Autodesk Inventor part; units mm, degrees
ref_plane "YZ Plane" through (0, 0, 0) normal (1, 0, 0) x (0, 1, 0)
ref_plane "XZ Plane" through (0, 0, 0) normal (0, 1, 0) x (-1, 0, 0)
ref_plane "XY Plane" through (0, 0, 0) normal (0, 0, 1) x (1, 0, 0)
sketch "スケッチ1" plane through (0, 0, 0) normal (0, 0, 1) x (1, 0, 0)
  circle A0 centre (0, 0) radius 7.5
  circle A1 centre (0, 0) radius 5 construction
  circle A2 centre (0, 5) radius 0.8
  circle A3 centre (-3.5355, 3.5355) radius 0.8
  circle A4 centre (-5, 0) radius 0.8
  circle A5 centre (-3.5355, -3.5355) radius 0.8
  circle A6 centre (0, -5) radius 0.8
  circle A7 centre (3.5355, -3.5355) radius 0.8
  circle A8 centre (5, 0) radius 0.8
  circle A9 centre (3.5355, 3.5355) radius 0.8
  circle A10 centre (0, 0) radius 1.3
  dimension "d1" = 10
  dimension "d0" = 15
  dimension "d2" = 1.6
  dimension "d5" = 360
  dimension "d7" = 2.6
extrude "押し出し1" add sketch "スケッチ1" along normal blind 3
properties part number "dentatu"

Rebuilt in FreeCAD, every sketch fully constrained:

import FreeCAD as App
import Part
import Sketcher
Q = App.Units.Quantity

doc = App.newDocument("Part")
body = doc.addObject("PartDesign::Body", "Body")

sketch1 = body.newObject("Sketcher::SketchObject", "Sketch")
sketch1.AttachmentSupport = (doc.getObject("XY_Plane"), [""])
sketch1.MapMode = "FlatFace"
sketch1.addGeometry([
    Part.Circle(App.Vector(0, 0, 0), App.Vector(0, 0, 1), 7.5),
    Part.Circle(App.Vector(-3.5, -3.5, 0), App.Vector(0, 0, 1), 0.8),
    Part.Circle(App.Vector(0, -5, 0), App.Vector(0, 0, 1), 0.8),
    Part.Circle(App.Vector(3.5, -3.5, 0), App.Vector(0, 0, 1), 0.8),
    Part.Circle(App.Vector(-5, 0, 0), App.Vector(0, 0, 1), 0.8),
    Part.Circle(App.Vector(-3.5, 3.5, 0), App.Vector(0, 0, 1), 0.8),
    Part.Circle(App.Vector(0, 0, 0), App.Vector(0, 0, 1), 1.3),
    Part.Circle(App.Vector(3.5, 3.5, 0), App.Vector(0, 0, 1), 0.8),
    Part.Circle(App.Vector(5, 0, 0), App.Vector(0, 0, 1), 0.8),
    Part.Circle(App.Vector(0, 5, 0), App.Vector(0, 0, 1), 0.8),
], False)
sketch1.addConstraint([
    Sketcher.Constraint("Coincident", 0, 3, -1, 1),
    Sketcher.Constraint("Coincident", 6, 3, -1, 1),
    Sketcher.Constraint("Equal", 1, 2),
    Sketcher.Constraint("Equal", 2, 3),
    Sketcher.Constraint("Equal", 3, 4),
    Sketcher.Constraint("Equal", 4, 5),
    Sketcher.Constraint("Equal", 5, 7),
    Sketcher.Constraint("Equal", 7, 8),
    Sketcher.Constraint("Equal", 8, 9),
    Sketcher.Constraint("Symmetric", 3, 3, 5, 3, -1, 1),
    Sketcher.Constraint("Symmetric", 1, 3, 7, 3, -1, 1),
    Sketcher.Constraint("Symmetric", 4, 3, 8, 3, -1, 1),
    Sketcher.Constraint("Symmetric", 2, 3, 9, 3, -1, 1),
    Sketcher.Constraint("Symmetric", 1, 3, 3, 3, -2),
    Sketcher.Constraint("PointOnObject", 2, 3, -2),
    Sketcher.Constraint("PointOnObject", 4, 3, -1),
    Sketcher.Constraint("Diameter", 0, Q("15 mm")),
    Sketcher.Constraint("Diameter", 1, Q("1.6 mm")),
    Sketcher.Constraint("Diameter", 6, Q("2.6 mm")),
    Sketcher.Constraint("DistanceY", 2, 3, -1, 1, Q("5 mm")),
    Sketcher.Constraint("DistanceX", 4, 3, -1, 1, Q("5 mm")),
    Sketcher.Constraint("DistanceX", 1, 3, 3, 3, Q("7.071 mm")),
    Sketcher.Constraint("DistanceY", 1, 3, 5, 3, Q("7.071 mm")),
])
pad1 = body.newObject("PartDesign::Pad", "Pad")
pad1.Profile = sketch1
pad1.Length = 3

doc.recompute()
